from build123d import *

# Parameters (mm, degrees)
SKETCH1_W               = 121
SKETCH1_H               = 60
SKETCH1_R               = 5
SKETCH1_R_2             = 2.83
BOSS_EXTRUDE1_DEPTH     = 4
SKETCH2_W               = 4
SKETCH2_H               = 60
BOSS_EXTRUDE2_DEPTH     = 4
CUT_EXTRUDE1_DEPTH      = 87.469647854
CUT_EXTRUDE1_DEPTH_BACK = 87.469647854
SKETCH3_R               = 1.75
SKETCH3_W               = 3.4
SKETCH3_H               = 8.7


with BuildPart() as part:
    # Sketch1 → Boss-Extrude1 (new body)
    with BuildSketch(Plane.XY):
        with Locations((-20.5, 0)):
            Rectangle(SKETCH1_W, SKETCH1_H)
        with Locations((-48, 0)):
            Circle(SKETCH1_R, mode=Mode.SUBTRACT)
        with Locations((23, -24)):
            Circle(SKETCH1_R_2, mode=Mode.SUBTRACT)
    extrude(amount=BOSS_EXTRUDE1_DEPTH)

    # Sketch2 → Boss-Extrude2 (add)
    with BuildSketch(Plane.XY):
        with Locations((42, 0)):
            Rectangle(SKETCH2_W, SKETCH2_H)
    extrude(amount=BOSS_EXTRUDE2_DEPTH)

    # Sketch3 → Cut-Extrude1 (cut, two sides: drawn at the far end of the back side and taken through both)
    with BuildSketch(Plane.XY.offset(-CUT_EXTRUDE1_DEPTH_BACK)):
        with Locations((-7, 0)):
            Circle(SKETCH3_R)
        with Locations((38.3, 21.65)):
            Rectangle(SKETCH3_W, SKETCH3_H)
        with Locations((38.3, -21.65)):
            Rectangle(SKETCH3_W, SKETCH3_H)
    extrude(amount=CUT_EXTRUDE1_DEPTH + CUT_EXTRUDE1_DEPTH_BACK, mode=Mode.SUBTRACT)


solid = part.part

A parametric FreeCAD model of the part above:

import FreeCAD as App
import Part
import Sketcher

V = App.Vector
Q = App.Units.Quantity

doc = App.newDocument("Part")
body = doc.addObject("PartDesign::Body", "Body")

# Sketch on XY plane
sketch1 = body.newObject("Sketcher::SketchObject", "Sketch")
sketch1.AttachmentSupport = (doc.getObject("XY_Plane"), [""])
sketch1.MapMode = "FlatFace"
sketch1.addGeometry(Part.LineSegment(V(-81, 30, 0), V(-81, -30, 0)), False)
sketch1.addGeometry(Part.LineSegment(V(-81, -30, 0), V(40, -30, 0)), False)
sketch1.addGeometry(Part.LineSegment(V(40, -30, 0), V(40, 30, 0)), False)
sketch1.addGeometry(Part.LineSegment(V(40, 30, 0), V(-81, 30, 0)), False)
sketch1.addGeometry(Part.Circle(V(23, -24, 0), V(0, 0, 1), 2.8), False)
sketch1.addGeometry(Part.Circle(V(-48, 0, 0), V(0, 0, 1), 5), False)
sketch1.addConstraint(Sketcher.Constraint("Coincident", 0, 2, 1, 1))
sketch1.addConstraint(Sketcher.Constraint("Coincident", 1, 2, 2, 1))
sketch1.addConstraint(Sketcher.Constraint("Coincident", 2, 2, 3, 1))
sketch1.addConstraint(Sketcher.Constraint("Coincident", 3, 2, 0, 1))
sketch1.addConstraint(Sketcher.Constraint("Vertical", 0))
sketch1.addConstraint(Sketcher.Constraint("Horizontal", 1))
sketch1.addConstraint(Sketcher.Constraint("Vertical", 2))
sketch1.addConstraint(Sketcher.Constraint("Horizontal", 3))
sketch1.addConstraint(Sketcher.Constraint("PointOnObject", 5, 3, -1))
sketch1.addConstraint(Sketcher.Constraint("Diameter", 5, Q("10 mm")))
sketch1.addConstraint(Sketcher.Constraint("Diameter", 4, Q("5.66 mm")))
sketch1.addConstraint(Sketcher.Constraint("DistanceX", 1, 1, 1, 2, Q("121 mm")))
sketch1.addConstraint(Sketcher.Constraint("DistanceY", 0, 2, 0, 1, Q("60 mm")))
sketch1.addConstraint(Sketcher.Constraint("DistanceX", -1, 1, 4, 3, Q("23 mm")))
sketch1.addConstraint(Sketcher.Constraint("DistanceY", 4, 3, -1, 1, Q("24 mm")))
sketch1.addConstraint(Sketcher.Constraint("DistanceX", 5, 3, -1, 1, Q("48 mm")))
sketch1.addConstraint(Sketcher.Constraint("DistanceX", 0, 2, -1, 1, Q("81 mm")))
sketch1.addConstraint(Sketcher.Constraint("DistanceY", 0, 2, -1, 1, Q("30 mm")))
pad1 = body.newObject("PartDesign::Pad", "Pad")
pad1.Profile = sketch1
pad1.Length = 4

# Sketch on XY plane
sketch2 = body.newObject("Sketcher::SketchObject", "Sketch001")
sketch2.AttachmentSupport = (doc.getObject("XY_Plane"), [""])
sketch2.MapMode = "FlatFace"
sketch2.addGeometry(Part.LineSegment(V(40, 30, 0), V(40, -30, 0)), False)
sketch2.addGeometry(Part.LineSegment(V(40, -30, 0), V(44, -30, 0)), False)
sketch2.addGeometry(Part.LineSegment(V(44, -30, 0), V(44, 30, 0)), False)
sketch2.addGeometry(Part.LineSegment(V(44, 30, 0), V(40, 30, 0)), False)
sketch2.addConstraint(Sketcher.Constraint("Coincident", 0, 2, 1, 1))
sketch2.addConstraint(Sketcher.Constraint("Coincident", 1, 2, 2, 1))
sketch2.addConstraint(Sketcher.Constraint("Coincident", 2, 2, 3, 1))
sketch2.addConstraint(Sketcher.Constraint("Coincident", 3, 2, 0, 1))
sketch2.addConstraint(Sketcher.Constraint("Vertical", 0))
sketch2.addConstraint(Sketcher.Constraint("Horizontal", 1))
sketch2.addConstraint(Sketcher.Constraint("Vertical", 2))
sketch2.addConstraint(Sketcher.Constraint("Horizontal", 3))
sketch2.addConstraint(Sketcher.Constraint("DistanceX", 1, 1, 1, 2, Q("4 mm")))
sketch2.addConstraint(Sketcher.Constraint("DistanceY", 0, 2, 0, 1, Q("60 mm")))
sketch2.addConstraint(Sketcher.Constraint("DistanceX", -1, 1, 0, 2, Q("40 mm")))
sketch2.addConstraint(Sketcher.Constraint("DistanceY", 0, 2, -1, 1, Q("30 mm")))
pad2 = body.newObject("PartDesign::Pad", "Pad001")
pad2.Profile = sketch2
pad2.Length = 4

# Sketch on XY plane
sketch3 = body.newObject("Sketcher::SketchObject", "Sketch002")
sketch3.AttachmentSupport = (doc.getObject("XY_Plane"), [""])
sketch3.MapMode = "FlatFace"
sketch3.addGeometry(Part.Circle(V(-7, 0, 0), V(0, 0, 1), 1.8), False)
sketch3.addGeometry(Part.LineSegment(V(36.6, 26, 0), V(36.6, 17.3, 0)), False)
sketch3.addGeometry(Part.LineSegment(V(36.6, 17.3, 0), V(40, 17.3, 0)), False)
sketch3.addGeometry(Part.LineSegment(V(40, 17.3, 0), V(40, 26, 0)), False)
sketch3.addGeometry(Part.LineSegment(V(40, 26, 0), V(36.6, 26, 0)), False)
sketch3.addGeometry(Part.LineSegment(V(36.6, -17.3, 0), V(36.6, -26, 0)), False)
sketch3.addGeometry(Part.LineSegment(V(36.6, -26, 0), V(40, -26, 0)), False)
sketch3.addGeometry(Part.LineSegment(V(40, -26, 0), V(40, -17.3, 0)), False)
sketch3.addGeometry(Part.LineSegment(V(40, -17.3, 0), V(36.6, -17.3, 0)), False)
sketch3.addConstraint(Sketcher.Constraint("Coincident", 1, 2, 2, 1))
sketch3.addConstraint(Sketcher.Constraint("Coincident", 2, 2, 3, 1))
sketch3.addConstraint(Sketcher.Constraint("Coincident", 3, 2, 4, 1))
sketch3.addConstraint(Sketcher.Constraint("Coincident", 4, 2, 1, 1))
sketch3.addConstraint(Sketcher.Constraint("Coincident", 5, 2, 6, 1))
sketch3.addConstraint(Sketcher.Constraint("Coincident", 6, 2, 7, 1))
sketch3.addConstraint(Sketcher.Constraint("Coincident", 7, 2, 8, 1))
sketch3.addConstraint(Sketcher.Constraint("Coincident", 8, 2, 5, 1))
sketch3.addConstraint(Sketcher.Constraint("Vertical", 1))
sketch3.addConstraint(Sketcher.Constraint("Horizontal", 2))
sketch3.addConstraint(Sketcher.Constraint("Vertical", 3))
sketch3.addConstraint(Sketcher.Constraint("Horizontal", 4))
sketch3.addConstraint(Sketcher.Constraint("Vertical", 5))
sketch3.addConstraint(Sketcher.Constraint("Horizontal", 6))
sketch3.addConstraint(Sketcher.Constraint("Vertical", 7))
sketch3.addConstraint(Sketcher.Constraint("Horizontal", 8))
sketch3.addConstraint(Sketcher.Constraint("Symmetric", 4, 2, 5, 2, -1))
sketch3.addConstraint(Sketcher.Constraint("Symmetric", 2, 2, 7, 2, -1))
sketch3.addConstraint(Sketcher.Constraint("PointOnObject", 0, 3, -1))
sketch3.addConstraint(Sketcher.Constraint("Diameter", 0, Q("3.5 mm")))
sketch3.addConstraint(Sketcher.Constraint("DistanceX", 2, 1, 2, 2, Q("3.4 mm")))
sketch3.addConstraint(Sketcher.Constraint("DistanceY", 1, 2, 1, 1, Q("8.7 mm")))
sketch3.addConstraint(Sketcher.Constraint("DistanceX", 0, 3, -1, 1, Q("7 mm")))
sketch3.addConstraint(Sketcher.Constraint("DistanceX", -1, 1, 2, 2, Q("40 mm")))
sketch3.addConstraint(Sketcher.Constraint("DistanceY", -1, 1, 3, 2, Q("26 mm")))
pocket1 = body.newObject("PartDesign::Pocket", "Pocket")
pocket1.Profile = sketch3
pocket1.Type = "ThroughAll"
pocket1.Midplane = True

doc.recompute()
